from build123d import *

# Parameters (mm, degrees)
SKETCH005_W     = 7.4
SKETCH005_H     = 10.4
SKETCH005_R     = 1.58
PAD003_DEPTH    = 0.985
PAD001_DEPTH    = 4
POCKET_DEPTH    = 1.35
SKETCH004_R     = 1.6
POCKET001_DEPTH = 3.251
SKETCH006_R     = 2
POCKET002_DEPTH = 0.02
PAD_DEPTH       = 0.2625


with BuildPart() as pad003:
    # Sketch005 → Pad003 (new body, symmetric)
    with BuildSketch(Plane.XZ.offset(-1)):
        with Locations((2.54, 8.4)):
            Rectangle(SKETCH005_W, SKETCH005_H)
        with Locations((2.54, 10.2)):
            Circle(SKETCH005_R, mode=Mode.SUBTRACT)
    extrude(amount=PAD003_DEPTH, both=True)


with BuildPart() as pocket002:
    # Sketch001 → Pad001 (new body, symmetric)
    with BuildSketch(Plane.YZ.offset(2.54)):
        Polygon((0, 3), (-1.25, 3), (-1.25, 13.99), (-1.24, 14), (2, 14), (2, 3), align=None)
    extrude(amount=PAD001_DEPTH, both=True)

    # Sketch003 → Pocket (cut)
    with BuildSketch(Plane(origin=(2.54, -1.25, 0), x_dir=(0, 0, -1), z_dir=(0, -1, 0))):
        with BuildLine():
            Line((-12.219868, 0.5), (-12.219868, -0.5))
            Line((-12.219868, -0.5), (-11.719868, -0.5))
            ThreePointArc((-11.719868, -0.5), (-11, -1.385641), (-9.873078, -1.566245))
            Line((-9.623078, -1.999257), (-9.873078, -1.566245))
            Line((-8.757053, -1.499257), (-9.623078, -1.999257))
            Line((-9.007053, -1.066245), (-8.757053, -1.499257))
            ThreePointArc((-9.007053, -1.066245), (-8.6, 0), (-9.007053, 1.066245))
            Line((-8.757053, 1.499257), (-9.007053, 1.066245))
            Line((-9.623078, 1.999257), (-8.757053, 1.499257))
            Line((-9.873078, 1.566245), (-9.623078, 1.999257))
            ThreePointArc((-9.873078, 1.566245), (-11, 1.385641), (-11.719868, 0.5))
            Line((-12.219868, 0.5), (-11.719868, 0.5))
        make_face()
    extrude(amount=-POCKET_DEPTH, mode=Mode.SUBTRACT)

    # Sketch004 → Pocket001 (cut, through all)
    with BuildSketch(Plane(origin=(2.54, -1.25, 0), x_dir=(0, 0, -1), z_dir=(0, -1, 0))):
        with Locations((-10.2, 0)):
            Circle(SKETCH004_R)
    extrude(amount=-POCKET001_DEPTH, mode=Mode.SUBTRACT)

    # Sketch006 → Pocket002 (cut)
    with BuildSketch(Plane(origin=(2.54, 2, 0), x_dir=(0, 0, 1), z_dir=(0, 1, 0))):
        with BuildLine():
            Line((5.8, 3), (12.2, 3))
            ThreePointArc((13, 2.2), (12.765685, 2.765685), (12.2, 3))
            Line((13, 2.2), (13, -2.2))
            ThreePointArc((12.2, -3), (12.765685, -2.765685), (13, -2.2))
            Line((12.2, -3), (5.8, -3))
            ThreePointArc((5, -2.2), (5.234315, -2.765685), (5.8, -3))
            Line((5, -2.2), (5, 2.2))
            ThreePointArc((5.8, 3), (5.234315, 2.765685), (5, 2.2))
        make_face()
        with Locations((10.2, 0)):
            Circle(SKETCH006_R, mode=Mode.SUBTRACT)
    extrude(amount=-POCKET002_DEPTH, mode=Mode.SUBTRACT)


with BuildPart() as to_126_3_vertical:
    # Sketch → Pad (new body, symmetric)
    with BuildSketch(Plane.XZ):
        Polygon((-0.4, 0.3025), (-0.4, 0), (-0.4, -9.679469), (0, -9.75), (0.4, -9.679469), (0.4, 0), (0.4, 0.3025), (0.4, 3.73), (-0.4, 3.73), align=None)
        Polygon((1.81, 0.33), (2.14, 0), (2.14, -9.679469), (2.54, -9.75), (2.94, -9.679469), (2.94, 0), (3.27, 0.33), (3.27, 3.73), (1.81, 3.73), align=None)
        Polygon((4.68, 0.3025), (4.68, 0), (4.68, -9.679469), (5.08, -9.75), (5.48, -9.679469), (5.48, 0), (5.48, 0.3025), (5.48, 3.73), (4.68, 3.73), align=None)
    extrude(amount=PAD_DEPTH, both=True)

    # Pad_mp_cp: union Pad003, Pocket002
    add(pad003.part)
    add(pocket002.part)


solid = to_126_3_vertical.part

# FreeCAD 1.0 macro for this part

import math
import FreeCAD as App
import Part
import Sketcher

V = App.Vector
Q = App.Units.Quantity

doc = App.newDocument("Part")
params = doc.addObject("Spreadsheet::Sheet", "Params")
for row, (alias, value) in enumerate([
    ("sketch1_diameter", "3.16 mm"),
    ("sketch1_width", "7.4 mm"),
    ("sketch1_height", "10.4 mm"),
    ("pad1_length", "1.97 mm"),
    ("sketch2_height", "11 mm"),
    ("sketch2_width", "3.25 mm"),
    ("sketch2_width2", "3.24 mm"),
    ("pad2_length", "8 mm"),
    ("sketch3_radius", "1.599999 mm"),
    ("sketch3_width", "1 mm"),
    ("sketch3_length", "1 mm"),
    ("sketch3_height", "0.5 mm"),
    ("sketch3_length2", "0.499999 mm"),
    ("pocket1_length", "1.35 mm"),
    ("sketch4_diameter", "3.2 mm"),
    ("sketch5_diameter", "4 mm"),
    ("sketch5_radius", "0.800001 mm"),
    ("sketch5_width", "4.4 mm"),
    ("sketch5_height", "6.4 mm"),
    ("pocket3_length", "0.02 mm"),
    ("sketch6_width", "0.8 mm"),
    ("sketch6_height", "3.4 mm"),
    ("sketch6_width2", "1.46 mm"),
    ("pad3_length", "0.525 mm"),
], start=1):
    params.set(f"A{row}", alias)
    params.set(f"B{row}", "=" + value)
    params.setAlias(f"B{row}", alias)

body = doc.addObject("PartDesign::Body", "Body")

# Sketch on XZ plane
sketch1 = body.newObject("Sketcher::SketchObject", "Sketch")
sketch1.AttachmentSupport = (doc.getObject("XZ_Plane"), [""])
sketch1.MapMode = "FlatFace"
sketch1.AttachmentOffset = App.Placement(V(0, 0, -1), App.Rotation())
sketch1.addGeometry([
    Part.LineSegment(V(-1.2, 13.6, 0), V(-1.2, 3.2, 0)),  # 0
    Part.LineSegment(V(-1.2, 3.2, 0), V(6.2, 3.2, 0)),  # 1
    Part.LineSegment(V(6.2, 3.2, 0), V(6.2, 13.6, 0)),  # 2
    Part.LineSegment(V(6.2, 13.6, 0), V(-1.2, 13.6, 0)),  # 3
    Part.Circle(V(2.5, 10.2, 0), V(0, 0, 1), 1.6),  # 4
], False)
sketch1.addConstraint([
    Sketcher.Constraint("Coincident", 0, 2, 1, 1),
    Sketcher.Constraint("Coincident", 1, 2, 2, 1),
    Sketcher.Constraint("Coincident", 2, 2, 3, 1),
    Sketcher.Constraint("Coincident", 3, 2, 0, 1),
    Sketcher.Constraint("Vertical", 0),
    Sketcher.Constraint("Horizontal", 1),
    Sketcher.Constraint("Vertical", 2),
    Sketcher.Constraint("Horizontal", 3),
    Sketcher.Constraint("Diameter", 4, 3.16),
    Sketcher.Constraint("DistanceX", 1, 1, 1, 2, 7.4),
    Sketcher.Constraint("DistanceY", 0, 2, 0, 1, 10.4),
    Sketcher.Constraint("DistanceY", 0, 2, 4, 3, 7.0),
    Sketcher.Constraint("DistanceY", -1, 1, 4, 3, 10.2),
    Sketcher.Constraint("DistanceX", 0, 2, 4, 3, 3.7),
    Sketcher.Constraint("DistanceX", -1, 1, 4, 3, 2.54),
])
sketch1.setExpression("Constraints[8]", "Params.sketch1_diameter")
sketch1.setExpression("Constraints[9]", "Params.sketch1_width")
sketch1.setExpression("Constraints[10]", "Params.sketch1_height")
pad1 = body.newObject("PartDesign::Pad", "Pad")
pad1.Profile = sketch1
pad1.setExpression("Length", "Params.pad1_length")
pad1.Midplane = True
body2 = doc.addObject("PartDesign::Body", "Body001")

# Sketch on YZ plane
sketch2 = body2.newObject("Sketcher::SketchObject", "Sketch001")
sketch2.AttachmentSupport = (doc.getObject("YZ_Plane001"), [""])
sketch2.MapMode = "FlatFace"
sketch2.AttachmentOffset = App.Placement(V(0, 0, 2.54), App.Rotation())
sketch2.addGeometry([
    Part.LineSegment(V(-1.25, 3, 0), V(2, 3, 0)),  # 0
    Part.LineSegment(V(2, 3, 0), V(2, 14, 0)),  # 1
    Part.LineSegment(V(2, 14, 0), V(-1.24, 14, 0)),  # 2
    Part.LineSegment(V(-1.24, 14, 0), V(-1.25, 13.99, 0)),  # 3
    Part.LineSegment(V(-1.25, 13.99, 0), V(-1.25, 3, 0)),  # 4
], False)
sketch2.addConstraint([
    Sketcher.Constraint("Coincident", 0, 2, 1, 1),
    Sketcher.Constraint("Coincident", 1, 2, 2, 1),
    Sketcher.Constraint("Coincident", 2, 2, 3, 1),
    Sketcher.Constraint("Coincident", 3, 2, 4, 1),
    Sketcher.Constraint("Coincident", 4, 2, 0, 1),
    Sketcher.Constraint("Horizontal", 0),
    Sketcher.Constraint("Vertical", 1),
    Sketcher.Constraint("Horizontal", 2),
    Sketcher.Constraint("Vertical", 4),
    Sketcher.Constraint("DistanceY", 1, 1, 1, 2, 11.0),
    Sketcher.Constraint("Angle", 3, Q("-135 deg")),
    Sketcher.Constraint("DistanceX", -1, 1, 0, 2, 2.0),
    Sketcher.Constraint("DistanceY", -1, 1, 0, 2, 3.0),
    Sketcher.Constraint("DistanceX", 0, 1, 0, 2, 3.25),
    Sketcher.Constraint("DistanceX", 2, 2, 2, 1, 3.24),
])
sketch2.setExpression("Constraints[9]", "Params.sketch2_height")
sketch2.setExpression("Constraints[13]", "Params.sketch2_width")
sketch2.setExpression("Constraints[14]", "Params.sketch2_width2")
pad2 = body2.newObject("PartDesign::Pad", "Pad001")
pad2.Profile = sketch2
pad2.setExpression("Length", "Params.pad2_length")
pad2.Midplane = True

# Sketch on XZ plane
sketch3 = body2.newObject("Sketcher::SketchObject", "Sketch002")
sketch3.AttachmentSupport = (doc.getObject("XZ_Plane001"), [""])
sketch3.MapMode = "FlatFace"
sketch3.AttachmentOffset = App.Placement(V(0, 0, 1.25), App.Rotation())
sketch3.addGeometry([
    Part.LineSegment(V(3.04, 12.22, 0), V(2.04, 12.22, 0)),  # 0
    Part.LineSegment(V(2.04, 12.22, 0), V(2.04, 11.72, 0)),  # 1
    Part.ArcOfCircle(Part.Circle(V(2.54, 10.2, 0), V(0, 0, 1), 1.6), math.radians(108), math.radians(192)),  # 2
    Part.LineSegment(V(0.97, 9.87, 0), V(0.54, 9.62, 0)),  # 3
    Part.LineSegment(V(0.54, 9.62, 0), V(1.04, 8.76, 0)),  # 4
    Part.LineSegment(V(1.04, 8.76, 0), V(1.47, 9.01, 0)),  # 5
    Part.ArcOfCircle(Part.Circle(V(2.54, 10.2, 0), V(0, 0, 1), 1.6), math.radians(-132), math.radians(-48)),  # 6
    Part.LineSegment(V(3.61, 9.01, 0), V(4.04, 8.76, 0)),  # 7
    Part.LineSegment(V(4.04, 8.76, 0), V(4.54, 9.62, 0)),  # 8
    Part.LineSegment(V(4.54, 9.62, 0), V(4.11, 9.87, 0)),  # 9
    Part.ArcOfCircle(Part.Circle(V(2.54, 10.2, 0), V(0, 0, 1), 1.6), math.radians(-12), math.radians(72)),  # 10
    Part.LineSegment(V(3.04, 11.72, 0), V(3.04, 12.22, 0)),  # 11
], False)
sketch3.addConstraint([
    Sketcher.Constraint("Coincident", 0, 2, 1, 1),
    Sketcher.Constraint("Coincident", 1, 2, 2, 1),
    Sketcher.Constraint("Coincident", 2, 2, 3, 1),
    Sketcher.Constraint("Coincident", 3, 2, 4, 1),
    Sketcher.Constraint("Coincident", 4, 2, 5, 1),
    Sketcher.Constraint("Coincident", 5, 2, 6, 1),
    Sketcher.Constraint("Coincident", 6, 2, 7, 1),
    Sketcher.Constraint("Coincident", 7, 2, 8, 1),
    Sketcher.Constraint("Coincident", 8, 2, 9, 1),
    Sketcher.Constraint("Coincident", 9, 2, 10, 1),
    Sketcher.Constraint("Coincident", 10, 2, 11, 1),
    Sketcher.Constraint("Coincident", 11, 2, 0, 1),
    Sketcher.Constraint("Horizontal", 0),
    Sketcher.Constraint("Vertical", 1),
    Sketcher.Constraint("Vertical", 11),
    Sketcher.Constraint("Coincident", 6, 3, 2, 3),
    Sketcher.Constraint("Coincident", 10, 3, 2, 3),
    Sketcher.Constraint("Equal", 2, 6),
    Sketcher.Constraint("Equal", 6, 10),
    Sketcher.Constraint("Perpendicular", 3, 4),
    Sketcher.Constraint("Perpendicular", 4, 5),
    Sketcher.Constraint("Perpendicular", 7, 8),
    Sketcher.Constraint("Perpendicular", 8, 9),
    Sketcher.Constraint("Horizontal", 5, 2, 6, 2),
    Sketcher.Constraint("Horizontal", 4, 2, 7, 2),
    Sketcher.Constraint("Horizontal", 3, 2, 8, 2),
    Sketcher.Constraint("Horizontal", 2, 2, 9, 2),
    Sketcher.Constraint("Horizontal", 1, 2, 10, 2),
    Sketcher.Constraint("Equal", 3, 5),
    Sketcher.Constraint("Radius", 2, 1.599999),
    Sketcher.Constraint("DistanceX", 0, 2, 0, 1, 1.0),
    Sketcher.Constraint("Angle", 4, Q("-59.999988 deg")),
    Sketcher.Constraint("Distance", 4, 1.0),
    Sketcher.Constraint("DistanceY", 1, 2, 1, 1, 0.5),
    Sketcher.Constraint("Distance", 3, 0.499999),
    Sketcher.Constraint("DistanceY", -1, 1, 2, 3, 10.2),
    Sketcher.Constraint("DistanceX", -1, 1, 2, 3, 2.539999),
])
sketch3.setExpression("Constraints[29]", "Params.sketch3_radius")
sketch3.setExpression("Constraints[30]", "Params.sketch3_width")
sketch3.setExpression("Constraints[32]", "Params.sketch3_length")
sketch3.setExpression("Constraints[33]", "Params.sketch3_height")
sketch3.setExpression("Constraints[34]", "Params.sketch3_length2")
pocket1 = body2.newObject("PartDesign::Pocket", "Pocket")
pocket1.Profile = sketch3
pocket1.setExpression("Length", "Params.pocket1_length")

# Sketch on XZ plane
sketch4 = body2.newObject("Sketcher::SketchObject", "Sketch003")
sketch4.AttachmentSupport = (doc.getObject("XZ_Plane001"), [""])
sketch4.MapMode = "FlatFace"
sketch4.AttachmentOffset = App.Placement(V(0, 0, 1.25), App.Rotation())
sketch4.addGeometry(Part.Circle(V(2.5, 10.2, 0), V(0, 0, 1), 1.6), False)
sketch4.addConstraint([
    Sketcher.Constraint("Diameter", 0, 3.2),
    Sketcher.Constraint("DistanceY", -1, 1, 0, 3, 10.2),
    Sketcher.Constraint("DistanceX", -1, 1, 0, 3, 2.54),
])
sketch4.setExpression("Constraints[0]", "Params.sketch4_diameter")
pocket2 = body2.newObject("PartDesign::Pocket", "Pocket001")
pocket2.Profile = sketch4
pocket2.Type = "ThroughAll"

# Sketch on XZ plane
sketch5 = body2.newObject("Sketcher::SketchObject", "Sketch004")
sketch5.AttachmentSupport = (doc.getObject("XZ_Plane001"), [""])
sketch5.MapMode = "FlatFace"
sketch5.AttachmentOffset = App.Placement(V(0, 0, -2), App.Rotation())
sketch5.addGeometry([
    Part.LineSegment(V(5.5, 12.2, 0), V(5.5, 5.8, 0)),  # 0
    Part.ArcOfCircle(Part.Circle(V(4.7, 5.8, 0), V(0, 0, 1), 0.8), math.radians(-90), math.radians(0)),  # 1
    Part.LineSegment(V(4.7, 5, 0), V(0.3, 5, 0)),  # 2
    Part.ArcOfCircle(Part.Circle(V(0.3, 5.8, 0), V(0, 0, 1), 0.8), math.radians(-180), math.radians(-90)),  # 3
    Part.LineSegment(V(-0.5, 5.8, 0), V(-0.5, 12.2, 0)),  # 4
    Part.ArcOfCircle(Part.Circle(V(0.3, 12.2, 0), V(0, 0, 1), 0.8), math.radians(90), math.radians(180)),  # 5
    Part.LineSegment(V(0.3, 13, 0), V(4.7, 13, 0)),  # 6
    Part.ArcOfCircle(Part.Circle(V(4.7, 12.2, 0), V(0, 0, 1), 0.8), math.radians(0), math.radians(90)),  # 7
    Part.Circle(V(2.5, 10.2, 0), V(0, 0, 1), 2),  # 8
], False)
sketch5.addConstraint([
    Sketcher.Constraint("Tangent", 0, 2, 1, 2),
    Sketcher.Constraint("Tangent", 1, 1, 2, 1),
    Sketcher.Constraint("Tangent", 2, 2, 3, 2),
    Sketcher.Constraint("Tangent", 3, 1, 4, 1),
    Sketcher.Constraint("Tangent", 4, 2, 5, 2),
    Sketcher.Constraint("Tangent", 5, 1, 6, 1),
    Sketcher.Constraint("Tangent", 6, 2, 7, 2),
    Sketcher.Constraint("Tangent", 7, 1, 0, 1),
    Sketcher.Constraint("Vertical", 0),
    Sketcher.Constraint("Horizontal", 2),
    Sketcher.Constraint("Vertical", 4),
    Sketcher.Constraint("Horizontal", 6),
    Sketcher.Constraint("Equal", 1, 3),
    Sketcher.Constraint("Equal", 3, 5),
    Sketcher.Constraint("Equal", 5, 7),
    Sketcher.Constraint("Diameter", 8, 4.0),
    Sketcher.Constraint("Radius", 1, 0.800001),
    Sketcher.Constraint("DistanceX", 2, 2, 2, 1, 4.4),
    Sketcher.Constraint("DistanceY", 0, 2, 0, 1, 6.4),
    Sketcher.Constraint("DistanceY", -1, 1, 1, 1, 5.0),
    Sketcher.Constraint("DistanceY", 8, 3, 5, 3, 1.999999),
    Sketcher.Constraint("DistanceX", 8, 3, 0, 2, 3.0),
    Sketcher.Constraint("DistanceX", -1, 1, 1, 3, 4.739999),
])
sketch5.setExpression("Constraints[15]", "Params.sketch5_diameter")
sketch5.setExpression("Constraints[16]", "Params.sketch5_radius")
sketch5.setExpression("Constraints[17]", "Params.sketch5_width")
sketch5.setExpression("Constraints[18]", "Params.sketch5_height")
pocket3 = body2.newObject("PartDesign::Pocket", "Pocket002")
pocket3.Profile = sketch5
pocket3.setExpression("Length", "Params.pocket3_length")
pocket3.Reversed = True
body3 = doc.addObject("PartDesign::Body", "Body002")
body3.AllowCompound = True

# Sketch on XZ plane
sketch6 = body3.newObject("Sketcher::SketchObject", "Sketch005")
sketch6.AttachmentSupport = (doc.getObject("XZ_Plane002"), [""])
sketch6.MapMode = "FlatFace"
sketch6.addGeometry([
    Part.LineSegment(V(-0.4, -9.68, 0), V(0, -9.75, 0)),  # 0
    Part.LineSegment(V(0, -9.75, 0), V(0.4, -9.68, 0)),  # 1
    Part.LineSegment(V(0.4, -9.68, 0), V(0.4, 3.73, 0)),  # 2
    Part.LineSegment(V(0.4, 3.73, 0), V(-0.4, 3.73, 0)),  # 3
    Part.LineSegment(V(-0.4, 3.73, 0), V(-0.4, -9.68, 0)),  # 4
    Part.LineSegment(V(1.81, 0.33, 0), V(2.14, 0, 0)),  # 5
    Part.LineSegment(V(2.14, 0, 0), V(2.14, -9.68, 0)),  # 6
    Part.LineSegment(V(2.14, -9.68, 0), V(2.54, -9.75, 0)),  # 7
    Part.LineSegment(V(2.54, -9.75, 0), V(2.94, -9.68, 0)),  # 8
    Part.LineSegment(V(2.94, -9.68, 0), V(2.94, 0, 0)),  # 9
    Part.LineSegment(V(2.94, 0, 0), V(3.27, 0.33, 0)),  # 10
    Part.LineSegment(V(3.27, 0.33, 0), V(3.27, 3.73, 0)),  # 11
    Part.LineSegment(V(3.27, 3.73, 0), V(1.81, 3.73, 0)),  # 12
    Part.LineSegment(V(1.81, 3.73, 0), V(1.81, 0.33, 0)),  # 13
    Part.LineSegment(V(4.68, -9.68, 0), V(5.08, -9.75, 0)),  # 14
    Part.LineSegment(V(5.08, -9.75, 0), V(5.48, -9.68, 0)),  # 15
    Part.LineSegment(V(5.48, -9.68, 0), V(5.48, 3.73, 0)),  # 16
    Part.LineSegment(V(5.48, 3.73, 0), V(4.68, 3.73, 0)),  # 17
    Part.LineSegment(V(4.68, 3.73, 0), V(4.68, -9.68, 0)),  # 18
], False)
sketch6.addConstraint([
    Sketcher.Constraint("Coincident", 0, 2, 1, 1),
    Sketcher.Constraint("Coincident", 1, 2, 2, 1),
    Sketcher.Constraint("Coincident", 2, 2, 3, 1),
    Sketcher.Constraint("Coincident", 3, 2, 4, 1),
    Sketcher.Constraint("Coincident", 4, 2, 0, 1),
    Sketcher.Constraint("Coincident", 5, 2, 6, 1),
    Sketcher.Constraint("Coincident", 6, 2, 7, 1),
    Sketcher.Constraint("Coincident", 7, 2, 8, 1),
    Sketcher.Constraint("Coincident", 8, 2, 9, 1),
    Sketcher.Constraint("Coincident", 9, 2, 10, 1),
    Sketcher.Constraint("Coincident", 10, 2, 11, 1),
    Sketcher.Constraint("Coincident", 11, 2, 12, 1),
    Sketcher.Constraint("Coincident", 12, 2, 13, 1),
    Sketcher.Constraint("Coincident", 13, 2, 5, 1),
    Sketcher.Constraint("Coincident", 14, 2, 15, 1),
    Sketcher.Constraint("Coincident", 15, 2, 16, 1),
    Sketcher.Constraint("Coincident", 16, 2, 17, 1),
    Sketcher.Constraint("Coincident", 17, 2, 18, 1),
    Sketcher.Constraint("Coincident", 18, 2, 14, 1),
    Sketcher.Constraint("Vertical", 2),
    Sketcher.Constraint("Horizontal", 3),
    Sketcher.Constraint("Vertical", 4),
    Sketcher.Constraint("Vertical", 6),
    Sketcher.Constraint("Vertical", 9),
    Sketcher.Constraint("Vertical", 11),
    Sketcher.Constraint("Horizontal", 12),
    Sketcher.Constraint("Vertical", 13),
    Sketcher.Constraint("Vertical", 16),
    Sketcher.Constraint("Horizontal", 17),
    Sketcher.Constraint("Vertical", 18),
    Sketcher.Constraint("Symmetric", 1, 2, 4, 2, -2),
    Sketcher.Constraint("PointOnObject", 0, 2, -2),
    Sketcher.Constraint("PointOnObject", 5, 2, -1),
    Sketcher.Constraint("PointOnObject", 9, 2, -1),
    Sketcher.Constraint("Parallel", 0, 7),
    Sketcher.Constraint("Parallel", 1, 8),
    Sketcher.Constraint("Perpendicular", 5, 10),
    Sketcher.Constraint("Parallel", 7, 14),
    Sketcher.Constraint("Parallel", 8, 15),
    Sketcher.Constraint("Horizontal", 4, 2, 6, 2),
    Sketcher.Constraint("Horizontal", 0, 2, 7, 2),
    Sketcher.Constraint("Horizontal", 6, 2, 8, 2),
    Sketcher.Constraint("Horizontal", 3, 2, 11, 2),
    Sketcher.Constraint("Horizontal", 10, 2, 13, 2),
    Sketcher.Constraint("Horizontal", 7, 2, 14, 2),
    Sketcher.Constraint("Horizontal", 8, 2, 15, 2),
    Sketcher.Constraint("Horizontal", 12, 2, 16, 2),
    Sketcher.Constraint("Horizontal", 15, 2, 18, 2),
    Sketcher.Constraint("Equal", 5, 10),
    Sketcher.Constraint("DistanceX", 3, 2, 3, 1, 0.8),
    Sketcher.Constraint("DistanceY", 11, 1, 11, 2, 3.4),
    Sketcher.Constraint("DistanceX", 12, 2, 12, 1, 1.46),
    Sketcher.Constraint("DistanceY", 0, 2, -1, 1, 9.75),
    Sketcher.Constraint("DistanceX", -1, 1, 5, 2, 2.14),
    Sketcher.Constraint("DistanceX", -1, 1, 14, 2, 5.08),
    Sketcher.Constraint("DistanceY", 2, 1, 2, 2, 13.409469),
])
sketch6.setExpression("Constraints[49]", "Params.sketch6_width")
sketch6.setExpression("Constraints[50]", "Params.sketch6_height")
sketch6.setExpression("Constraints[51]", "Params.sketch6_width2")
pad3 = body3.newObject("PartDesign::Pad", "Pad002")
pad3.Profile = sketch6
pad3.setExpression("Length", "Params.pad3_length")
pad3.Midplane = True
doc.recompute()

boolean = body3.newObject("PartDesign::Boolean", "Boolean")
boolean.Type = "Fuse"
boolean.addObjects([body])
doc.recompute()

boolean2 = body3.newObject("PartDesign::Boolean", "Boolean001")
boolean2.Type = "Fuse"
boolean2.addObjects([body2])

doc.recompute()
